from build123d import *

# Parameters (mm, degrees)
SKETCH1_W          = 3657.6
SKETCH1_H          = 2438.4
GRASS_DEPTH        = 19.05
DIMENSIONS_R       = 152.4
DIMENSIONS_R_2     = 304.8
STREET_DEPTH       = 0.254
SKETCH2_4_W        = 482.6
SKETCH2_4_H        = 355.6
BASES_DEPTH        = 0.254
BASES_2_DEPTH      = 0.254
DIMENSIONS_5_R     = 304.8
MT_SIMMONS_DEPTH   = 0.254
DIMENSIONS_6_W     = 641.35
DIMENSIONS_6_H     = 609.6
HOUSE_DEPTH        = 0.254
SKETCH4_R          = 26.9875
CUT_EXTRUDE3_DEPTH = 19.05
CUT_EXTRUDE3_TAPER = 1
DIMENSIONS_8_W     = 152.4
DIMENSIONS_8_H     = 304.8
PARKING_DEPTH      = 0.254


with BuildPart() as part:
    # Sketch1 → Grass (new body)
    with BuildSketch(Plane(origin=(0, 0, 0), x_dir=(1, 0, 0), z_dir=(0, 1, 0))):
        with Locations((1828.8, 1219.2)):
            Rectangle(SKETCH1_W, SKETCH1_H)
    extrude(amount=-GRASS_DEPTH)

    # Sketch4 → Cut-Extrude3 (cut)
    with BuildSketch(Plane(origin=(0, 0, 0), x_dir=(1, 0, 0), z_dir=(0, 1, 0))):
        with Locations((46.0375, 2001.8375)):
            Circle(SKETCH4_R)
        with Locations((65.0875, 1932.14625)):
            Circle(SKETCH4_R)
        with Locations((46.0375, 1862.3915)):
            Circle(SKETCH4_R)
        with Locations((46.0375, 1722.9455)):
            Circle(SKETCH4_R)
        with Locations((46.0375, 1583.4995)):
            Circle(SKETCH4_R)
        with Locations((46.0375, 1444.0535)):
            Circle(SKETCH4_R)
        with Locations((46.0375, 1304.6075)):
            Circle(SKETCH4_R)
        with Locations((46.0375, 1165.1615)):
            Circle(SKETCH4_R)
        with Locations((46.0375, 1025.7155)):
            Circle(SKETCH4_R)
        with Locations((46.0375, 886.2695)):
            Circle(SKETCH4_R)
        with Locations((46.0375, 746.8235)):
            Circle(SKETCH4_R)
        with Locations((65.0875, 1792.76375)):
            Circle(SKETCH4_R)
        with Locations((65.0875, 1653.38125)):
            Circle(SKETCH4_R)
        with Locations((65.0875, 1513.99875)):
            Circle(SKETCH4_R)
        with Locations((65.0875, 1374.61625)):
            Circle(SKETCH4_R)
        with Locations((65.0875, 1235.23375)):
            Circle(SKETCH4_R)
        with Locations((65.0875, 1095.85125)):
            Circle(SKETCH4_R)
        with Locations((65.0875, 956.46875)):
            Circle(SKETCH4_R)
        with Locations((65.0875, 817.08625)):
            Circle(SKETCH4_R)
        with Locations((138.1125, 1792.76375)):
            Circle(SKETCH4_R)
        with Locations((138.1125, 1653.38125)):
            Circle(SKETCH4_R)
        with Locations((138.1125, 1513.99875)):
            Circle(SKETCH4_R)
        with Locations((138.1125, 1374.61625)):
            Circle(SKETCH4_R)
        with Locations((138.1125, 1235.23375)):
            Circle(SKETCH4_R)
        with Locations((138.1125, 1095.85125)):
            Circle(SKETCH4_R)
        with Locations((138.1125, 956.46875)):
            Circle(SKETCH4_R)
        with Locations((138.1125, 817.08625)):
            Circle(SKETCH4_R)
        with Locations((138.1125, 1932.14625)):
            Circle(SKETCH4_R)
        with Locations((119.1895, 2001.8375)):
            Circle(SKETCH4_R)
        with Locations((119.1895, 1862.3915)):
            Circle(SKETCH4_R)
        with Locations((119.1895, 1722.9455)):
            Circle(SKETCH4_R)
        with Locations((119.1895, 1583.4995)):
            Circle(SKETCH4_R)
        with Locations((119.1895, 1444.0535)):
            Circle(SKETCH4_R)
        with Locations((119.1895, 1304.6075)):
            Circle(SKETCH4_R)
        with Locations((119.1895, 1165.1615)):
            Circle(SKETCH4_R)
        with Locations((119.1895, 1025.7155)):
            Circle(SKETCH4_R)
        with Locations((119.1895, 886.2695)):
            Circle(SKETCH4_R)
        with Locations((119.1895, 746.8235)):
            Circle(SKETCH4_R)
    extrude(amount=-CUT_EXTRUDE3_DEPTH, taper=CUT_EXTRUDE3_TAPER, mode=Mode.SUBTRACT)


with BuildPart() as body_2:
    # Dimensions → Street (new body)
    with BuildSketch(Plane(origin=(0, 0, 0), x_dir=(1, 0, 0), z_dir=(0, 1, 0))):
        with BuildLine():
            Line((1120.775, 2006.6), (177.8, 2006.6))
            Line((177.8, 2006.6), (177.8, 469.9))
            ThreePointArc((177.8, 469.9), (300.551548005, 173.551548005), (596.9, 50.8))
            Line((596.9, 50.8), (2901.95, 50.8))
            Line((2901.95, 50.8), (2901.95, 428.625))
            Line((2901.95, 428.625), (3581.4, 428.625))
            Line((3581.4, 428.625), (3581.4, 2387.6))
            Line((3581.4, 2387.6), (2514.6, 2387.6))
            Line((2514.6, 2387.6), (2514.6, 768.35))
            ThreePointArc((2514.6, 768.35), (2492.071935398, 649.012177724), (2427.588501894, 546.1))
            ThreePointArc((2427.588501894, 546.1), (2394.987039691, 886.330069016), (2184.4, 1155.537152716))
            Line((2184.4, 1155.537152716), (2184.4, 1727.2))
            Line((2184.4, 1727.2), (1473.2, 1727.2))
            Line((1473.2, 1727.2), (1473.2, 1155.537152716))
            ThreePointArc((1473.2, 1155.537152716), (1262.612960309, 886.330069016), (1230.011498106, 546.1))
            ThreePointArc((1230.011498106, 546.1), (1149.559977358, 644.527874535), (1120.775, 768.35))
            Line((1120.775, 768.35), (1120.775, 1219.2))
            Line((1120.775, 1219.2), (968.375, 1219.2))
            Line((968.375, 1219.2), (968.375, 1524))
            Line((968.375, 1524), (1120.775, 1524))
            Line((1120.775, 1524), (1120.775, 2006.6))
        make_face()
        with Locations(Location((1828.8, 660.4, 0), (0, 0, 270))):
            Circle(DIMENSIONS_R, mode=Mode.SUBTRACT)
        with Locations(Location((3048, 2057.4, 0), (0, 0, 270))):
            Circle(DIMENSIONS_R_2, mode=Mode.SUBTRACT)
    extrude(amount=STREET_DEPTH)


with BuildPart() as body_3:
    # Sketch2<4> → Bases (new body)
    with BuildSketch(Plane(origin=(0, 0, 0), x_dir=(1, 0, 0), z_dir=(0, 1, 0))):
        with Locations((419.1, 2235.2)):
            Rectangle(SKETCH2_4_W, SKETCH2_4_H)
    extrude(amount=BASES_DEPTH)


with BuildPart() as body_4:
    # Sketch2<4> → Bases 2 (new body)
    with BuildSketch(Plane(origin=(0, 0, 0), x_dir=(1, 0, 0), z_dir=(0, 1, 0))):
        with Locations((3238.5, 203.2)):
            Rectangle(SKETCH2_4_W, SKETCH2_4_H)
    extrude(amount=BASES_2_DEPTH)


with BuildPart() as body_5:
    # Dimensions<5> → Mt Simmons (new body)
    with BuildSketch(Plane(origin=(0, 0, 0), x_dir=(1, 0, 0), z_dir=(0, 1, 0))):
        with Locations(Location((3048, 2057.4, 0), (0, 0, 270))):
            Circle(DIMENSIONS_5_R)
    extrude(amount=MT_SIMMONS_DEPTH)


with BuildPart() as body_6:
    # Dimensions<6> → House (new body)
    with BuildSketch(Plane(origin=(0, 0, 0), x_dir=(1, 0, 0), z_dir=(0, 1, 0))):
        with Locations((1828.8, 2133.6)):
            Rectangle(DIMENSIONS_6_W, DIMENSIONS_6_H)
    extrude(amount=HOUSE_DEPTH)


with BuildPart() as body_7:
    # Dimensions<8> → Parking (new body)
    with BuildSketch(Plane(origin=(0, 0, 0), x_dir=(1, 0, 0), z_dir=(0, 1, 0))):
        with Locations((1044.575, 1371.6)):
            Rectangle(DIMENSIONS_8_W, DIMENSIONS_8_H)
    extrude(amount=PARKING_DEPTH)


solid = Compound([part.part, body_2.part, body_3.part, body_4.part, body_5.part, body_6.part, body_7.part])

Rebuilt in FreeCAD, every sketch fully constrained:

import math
import FreeCAD as App
import Part
import Sketcher

V = App.Vector
Q = App.Units.Quantity


def add_polygon(sketch, points):
    """Adds a closed chain of lines whose ends are joined by coincident constraints."""
    first, n = sketch.GeometryCount, len(points)
    for a, b in zip(points, points[1:] + points[:1]):
        sketch.addGeometry(Part.LineSegment(App.Vector(*a, 0), App.Vector(*b, 0)), False)
    for i in range(n):
        sketch.addConstraint(Sketcher.Constraint("Coincident", first + i, 2, first + (i + 1) % n, 1))

doc = App.newDocument("Part")
body = doc.addObject("PartDesign::Body", "Body")

# Sketch on XZ plane
sketch1 = doc.addObject("Sketcher::SketchObject", "Sketch")
body.addObject(sketch1)
sketch1.AttachmentSupport = (doc.XZ_Plane, [""])
sketch1.MapMode = "FlatFace"
add_polygon(sketch1, [(0, -2438), (0, 0), (3658, 0), (3658, -2438)])  # lines 0-3
sketch1.addConstraint([
    Sketcher.Constraint("Vertical", 0),
    Sketcher.Constraint("Horizontal", 1),
    Sketcher.Constraint("Vertical", 2),
    Sketcher.Constraint("Horizontal", 3),
    Sketcher.Constraint("Coincident", 0, 2, -1, 1),
    Sketcher.Constraint("DistanceX", 1, 1, 1, 2, Q("144 in")),
    Sketcher.Constraint("DistanceY", 0, 1, 0, 2, Q("96 in")),
])
pad1 = doc.addObject("PartDesign::Pad", "Pad")
body.addObject(pad1)
pad1.Profile = sketch1
pad1.Length = Q("0.75 in")

# Sketch on XZ plane
sketch2 = doc.addObject("Sketcher::SketchObject", "Sketch001")
body.addObject(sketch2)
sketch2.AttachmentSupport = (doc.XZ_Plane, [""])
sketch2.MapMode = "FlatFace"
sketch2.addGeometry([
    Part.Circle(V(46, -2002, 0), V(0, 0, 1), 27),  # 0
    Part.Circle(V(65, -1932, 0), V(0, 0, 1), 27),  # 1
    Part.Circle(V(46, -1862, 0), V(0, 0, 1), 27),  # 2
    Part.Circle(V(46, -1723, 0), V(0, 0, 1), 27),  # 3
    Part.Circle(V(46, -1583, 0), V(0, 0, 1), 27),  # 4
    Part.Circle(V(46, -1444, 0), V(0, 0, 1), 27),  # 5
    Part.Circle(V(46, -1305, 0), V(0, 0, 1), 27),  # 6
    Part.Circle(V(46, -1165, 0), V(0, 0, 1), 27),  # 7
    Part.Circle(V(46, -1026, 0), V(0, 0, 1), 27),  # 8
    Part.Circle(V(46, -886, 0), V(0, 0, 1), 27),  # 9
    Part.Circle(V(46, -747, 0), V(0, 0, 1), 27),  # 10
    Part.Circle(V(65, -1793, 0), V(0, 0, 1), 27),  # 11
    Part.Circle(V(65, -1653, 0), V(0, 0, 1), 27),  # 12
    Part.Circle(V(65, -1514, 0), V(0, 0, 1), 27),  # 13
    Part.Circle(V(65, -1375, 0), V(0, 0, 1), 27),  # 14
    Part.Circle(V(65, -1235, 0), V(0, 0, 1), 27),  # 15
    Part.Circle(V(65, -1096, 0), V(0, 0, 1), 27),  # 16
    Part.Circle(V(65, -956, 0), V(0, 0, 1), 27),  # 17
    Part.Circle(V(65, -817, 0), V(0, 0, 1), 27),  # 18
    Part.Circle(V(138, -1793, 0), V(0, 0, 1), 27),  # 19
    Part.Circle(V(138, -1653, 0), V(0, 0, 1), 27),  # 20
    Part.Circle(V(138, -1514, 0), V(0, 0, 1), 27),  # 21
    Part.Circle(V(138, -1375, 0), V(0, 0, 1), 27),  # 22
    Part.Circle(V(138, -1235, 0), V(0, 0, 1), 27),  # 23
    Part.Circle(V(138, -1096, 0), V(0, 0, 1), 27),  # 24
    Part.Circle(V(138, -956, 0), V(0, 0, 1), 27),  # 25
    Part.Circle(V(138, -817, 0), V(0, 0, 1), 27),  # 26
    Part.Circle(V(138, -1932, 0), V(0, 0, 1), 27),  # 27
    Part.Circle(V(119, -2002, 0), V(0, 0, 1), 27),  # 28
    Part.Circle(V(119, -1862, 0), V(0, 0, 1), 27),  # 29
    Part.Circle(V(119, -1723, 0), V(0, 0, 1), 27),  # 30
    Part.Circle(V(119, -1583, 0), V(0, 0, 1), 27),  # 31
    Part.Circle(V(119, -1444, 0), V(0, 0, 1), 27),  # 32
    Part.Circle(V(119, -1305, 0), V(0, 0, 1), 27),  # 33
    Part.Circle(V(119, -1165, 0), V(0, 0, 1), 27),  # 34
    Part.Circle(V(119, -1026, 0), V(0, 0, 1), 27),  # 35
    Part.Circle(V(119, -886, 0), V(0, 0, 1), 27),  # 36
    Part.Circle(V(119, -747, 0), V(0, 0, 1), 27),  # 37
], False)
sketch2.addConstraint([
    Sketcher.Constraint("Equal", 0, 1),
    Sketcher.Constraint("Equal", 1, 2),
    Sketcher.Constraint("Equal", 2, 3),
    Sketcher.Constraint("Equal", 3, 4),
    Sketcher.Constraint("Equal", 4, 5),
    Sketcher.Constraint("Equal", 5, 6),
    Sketcher.Constraint("Equal", 6, 7),
    Sketcher.Constraint("Equal", 7, 8),
    Sketcher.Constraint("Equal", 8, 9),
    Sketcher.Constraint("Equal", 9, 10),
    Sketcher.Constraint("Equal", 10, 11),
    Sketcher.Constraint("Equal", 11, 12),
    Sketcher.Constraint("Equal", 12, 13),
    Sketcher.Constraint("Equal", 13, 14),
    Sketcher.Constraint("Equal", 14, 15),
    Sketcher.Constraint("Equal", 15, 16),
    Sketcher.Constraint("Equal", 16, 17),
    Sketcher.Constraint("Equal", 17, 18),
    Sketcher.Constraint("Equal", 18, 19),
    Sketcher.Constraint("Equal", 19, 20),
    Sketcher.Constraint("Equal", 20, 21),
    Sketcher.Constraint("Equal", 21, 22),
    Sketcher.Constraint("Equal", 22, 23),
    Sketcher.Constraint("Equal", 23, 24),
    Sketcher.Constraint("Equal", 24, 25),
    Sketcher.Constraint("Equal", 25, 26),
    Sketcher.Constraint("Equal", 26, 27),
    Sketcher.Constraint("Equal", 27, 28),
    Sketcher.Constraint("Equal", 28, 29),
    Sketcher.Constraint("Equal", 29, 30),
    Sketcher.Constraint("Equal", 30, 31),
    Sketcher.Constraint("Equal", 31, 32),
    Sketcher.Constraint("Equal", 32, 33),
    Sketcher.Constraint("Equal", 33, 34),
    Sketcher.Constraint("Equal", 34, 35),
    Sketcher.Constraint("Equal", 35, 36),
    Sketcher.Constraint("Equal", 36, 37),
    Sketcher.Constraint("Horizontal", 11, 3, 19, 3),
    Sketcher.Constraint("Horizontal", 12, 3, 20, 3),
    Sketcher.Constraint("Horizontal", 13, 3, 21, 3),
    Sketcher.Constraint("Horizontal", 14, 3, 22, 3),
    Sketcher.Constraint("Horizontal", 15, 3, 23, 3),
    Sketcher.Constraint("Horizontal", 16, 3, 24, 3),
    Sketcher.Constraint("Horizontal", 17, 3, 25, 3),
    Sketcher.Constraint("Horizontal", 18, 3, 26, 3),
    Sketcher.Constraint("Horizontal", 1, 3, 27, 3),
    Sketcher.Constraint("Horizontal", 0, 3, 28, 3),
    Sketcher.Constraint("Horizontal", 2, 3, 29, 3),
    Sketcher.Constraint("Horizontal", 3, 3, 30, 3),
    Sketcher.Constraint("Horizontal", 4, 3, 31, 3),
    Sketcher.Constraint("Horizontal", 5, 3, 32, 3),
    Sketcher.Constraint("Horizontal", 6, 3, 33, 3),
    Sketcher.Constraint("Horizontal", 7, 3, 34, 3),
    Sketcher.Constraint("Horizontal", 8, 3, 35, 3),
    Sketcher.Constraint("Horizontal", 9, 3, 36, 3),
    Sketcher.Constraint("Horizontal", 10, 3, 37, 3),
    Sketcher.Constraint("Vertical", 0, 3, 2, 3),
    Sketcher.Constraint("Vertical", 2, 3, 3, 3),
    Sketcher.Constraint("Vertical", 3, 3, 4, 3),
    Sketcher.Constraint("Vertical", 4, 3, 5, 3),
    Sketcher.Constraint("Vertical", 5, 3, 6, 3),
    Sketcher.Constraint("Vertical", 6, 3, 7, 3),
    Sketcher.Constraint("Vertical", 7, 3, 8, 3),
    Sketcher.Constraint("Vertical", 8, 3, 9, 3),
    Sketcher.Constraint("Vertical", 9, 3, 10, 3),
    Sketcher.Constraint("Vertical", 1, 3, 11, 3),
    Sketcher.Constraint("Vertical", 11, 3, 12, 3),
    Sketcher.Constraint("Vertical", 12, 3, 13, 3),
    Sketcher.Constraint("Vertical", 13, 3, 14, 3),
    Sketcher.Constraint("Vertical", 14, 3, 15, 3),
    Sketcher.Constraint("Vertical", 15, 3, 16, 3),
    Sketcher.Constraint("Vertical", 16, 3, 17, 3),
    Sketcher.Constraint("Vertical", 17, 3, 18, 3),
    Sketcher.Constraint("Vertical", 19, 3, 20, 3),
    Sketcher.Constraint("Vertical", 20, 3, 21, 3),
    Sketcher.Constraint("Vertical", 21, 3, 22, 3),
    Sketcher.Constraint("Vertical", 22, 3, 23, 3),
    Sketcher.Constraint("Vertical", 23, 3, 24, 3),
    Sketcher.Constraint("Vertical", 24, 3, 25, 3),
    Sketcher.Constraint("Vertical", 25, 3, 26, 3),
    Sketcher.Constraint("Vertical", 26, 3, 27, 3),
    Sketcher.Constraint("Vertical", 28, 3, 29, 3),
    Sketcher.Constraint("Vertical", 29, 3, 30, 3),
    Sketcher.Constraint("Vertical", 30, 3, 31, 3),
    Sketcher.Constraint("Vertical", 31, 3, 32, 3),
    Sketcher.Constraint("Vertical", 32, 3, 33, 3),
    Sketcher.Constraint("Vertical", 33, 3, 34, 3),
    Sketcher.Constraint("Vertical", 34, 3, 35, 3),
    Sketcher.Constraint("Vertical", 35, 3, 36, 3),
    Sketcher.Constraint("Vertical", 36, 3, 37, 3),
    Sketcher.Constraint("Diameter", 0, Q("2.125 in")),
    Sketcher.Constraint("DistanceX", 0, 3, 1, 3, Q("0.75 in")),
    Sketcher.Constraint("DistanceY", 0, 3, 2, 3, Q("5.49 in")),
    Sketcher.Constraint("DistanceY", 2, 3, 3, 3, Q("5.49 in")),
    Sketcher.Constraint("DistanceY", 3, 3, 4, 3, Q("5.49 in")),
    Sketcher.Constraint("DistanceY", 4, 3, 5, 3, Q("5.49 in")),
    Sketcher.Constraint("DistanceY", 5, 3, 6, 3, Q("5.49 in")),
    Sketcher.Constraint("DistanceY", 6, 3, 7, 3, Q("5.49 in")),
    Sketcher.Constraint("DistanceY", 7, 3, 8, 3, Q("5.49 in")),
    Sketcher.Constraint("DistanceY", 8, 3, 9, 3, Q("5.49 in")),
    Sketcher.Constraint("DistanceY", 9, 3, 10, 3, Q("5.49 in")),
    Sketcher.Constraint("DistanceX", 0, 3, 28, 3, Q("2.88 in")),
    Sketcher.Constraint("DistanceX", -1, 1, 0, 3, Q("1.8125 in")),
    Sketcher.Constraint("DistanceY", 0, 3, -1, 1, Q("78.8125 in")),
    Sketcher.Constraint("DistanceY", 12, 3, -1, 1, Q("65.09375 in")),
    Sketcher.Constraint("DistanceY", 17, 3, -1, 1, Q("37.65625 in")),
    Sketcher.Constraint("DistanceX", -1, 1, 19, 3, Q("5.4375 in")),
    Sketcher.Constraint("DistanceY", 6, 3, 16, 3, Q("8.21875 in")),
    Sketcher.Constraint("DistanceY", 16, 3, 18, 3, Q("10.975 in")),
    Sketcher.Constraint("DistanceY", 1, 3, 11, 3, Q("5.4875 in")),
    Sketcher.Constraint("DistanceY", 11, 3, 12, 3, Q("5.4875 in")),
    Sketcher.Constraint("DistanceY", 12, 3, 13, 3, Q("5.4875 in")),
    Sketcher.Constraint("DistanceY", 13, 3, 14, 3, Q("5.4875 in")),
    Sketcher.Constraint("DistanceY", 14, 3, 15, 3, Q("5.4875 in")),
])
pocket1 = doc.addObject("PartDesign::Pocket", "Pocket")
body.addObject(pocket1)
pocket1.Profile = sketch2
pocket1.Length = Q("0.75 in")
pocket1.Reversed = True
pocket1.TaperAngle = -1
body2 = doc.addObject("PartDesign::Body", "Body001")

# Sketch on XZ plane
sketch3 = doc.addObject("Sketcher::SketchObject", "Sketch002")
body2.addObject(sketch3)
sketch3.AttachmentSupport = (doc.getObject("XZ_Plane001"), [""])
sketch3.MapMode = "FlatFace"
sketch3.addGeometry([
    Part.LineSegment(V(1121, -2007, 0), V(178, -2007, 0)),  # 0
    Part.LineSegment(V(178, -2007, 0), V(178, -470, 0)),  # 1
    Part.ArcOfCircle(Part.Circle(V(597, -470, 0), V(0, 0, 1), 419), math.radians(90), math.radians(180)),  # 2
    Part.LineSegment(V(597, -51, 0), V(2902, -51, 0)),  # 3
    Part.LineSegment(V(2902, -51, 0), V(2902, -429, 0)),  # 4
    Part.LineSegment(V(2902, -429, 0), V(3581, -429, 0)),  # 5
    Part.LineSegment(V(3581, -429, 0), V(3581, -2388, 0)),  # 6
    Part.LineSegment(V(3581, -2388, 0), V(2515, -2388, 0)),  # 7
    Part.LineSegment(V(2515, -2388, 0), V(2515, -768, 0)),  # 8
    Part.ArcOfCircle(Part.Circle(V(2187, -768, 0), V(0, 0, 1), 327), math.radians(0), math.radians(43)),  # 9
    Part.ArcOfCircle(Part.Circle(V(1829, -660, 0), V(0, 0, 1), 610), math.radians(-54), math.radians(11)),  # 10
    Part.LineSegment(V(2184, -1156, 0), V(2184, -1727, 0)),  # 11
    Part.LineSegment(V(2184, -1727, 0), V(1473, -1727, 0)),  # 12
    Part.LineSegment(V(1473, -1727, 0), V(1473, -1156, 0)),  # 13
    Part.ArcOfCircle(Part.Circle(V(1829, -660, 0), V(0, 0, 1), 610), math.radians(169), math.radians(234)),  # 14
    Part.ArcOfCircle(Part.Circle(V(1401, -768, 0), V(0, 0, 1), 281), math.radians(128), math.radians(180)),  # 15
    Part.LineSegment(V(1121, -768, 0), V(1121, -1219, 0)),  # 16
    Part.LineSegment(V(1121, -1219, 0), V(968, -1219, 0)),  # 17
    Part.LineSegment(V(968, -1219, 0), V(968, -1524, 0)),  # 18
    Part.LineSegment(V(968, -1524, 0), V(1121, -1524, 0)),  # 19
    Part.LineSegment(V(1121, -1524, 0), V(1121, -2007, 0)),  # 20
    Part.Circle(V(1829, -660, 0), V(0, 0, 1), 152),  # 21
    Part.Circle(V(3048, -2057, 0), V(0, 0, 1), 305),  # 22
], False)
sketch3.addConstraint([
    Sketcher.Constraint("Coincident", 0, 2, 1, 1),
    Sketcher.Constraint("Tangent", 1, 2, 2, 2),
    Sketcher.Constraint("Tangent", 2, 1, 3, 1),
    Sketcher.Constraint("Coincident", 3, 2, 4, 1),
    Sketcher.Constraint("Coincident", 4, 2, 5, 1),
    Sketcher.Constraint("Coincident", 5, 2, 6, 1),
    Sketcher.Constraint("Coincident", 6, 2, 7, 1),
    Sketcher.Constraint("Coincident", 7, 2, 8, 1),
    Sketcher.Constraint("Tangent", 8, 2, 9, 1),
    Sketcher.Constraint("Coincident", 9, 2, 10, 2),
    Sketcher.Constraint("Coincident", 10, 1, 11, 1),
    Sketcher.Constraint("Coincident", 11, 2, 12, 1),
    Sketcher.Constraint("Coincident", 12, 2, 13, 1),
    Sketcher.Constraint("Coincident", 13, 2, 14, 2),
    Sketcher.Constraint("Coincident", 14, 1, 15, 1),
    Sketcher.Constraint("Tangent", 15, 2, 16, 1),
    Sketcher.Constraint("Coincident", 16, 2, 17, 1),
    Sketcher.Constraint("Coincident", 17, 2, 18, 1),
    Sketcher.Constraint("Coincident", 18, 2, 19, 1),
    Sketcher.Constraint("Coincident", 19, 2, 20, 1),
    Sketcher.Constraint("Coincident", 20, 2, 0, 1),
    Sketcher.Constraint("Horizontal", 0),
    Sketcher.Constraint("Vertical", 1),
    Sketcher.Constraint("Horizontal", 3),
    Sketcher.Constraint("Vertical", 4),
    Sketcher.Constraint("Horizontal", 5),
    Sketcher.Constraint("Vertical", 6),
    Sketcher.Constraint("Horizontal", 7),
    Sketcher.Constraint("Vertical", 8),
    Sketcher.Constraint("Vertical", 11),
    Sketcher.Constraint("Horizontal", 12),
    Sketcher.Constraint("Vertical", 13),
    Sketcher.Constraint("Vertical", 16),
    Sketcher.Constraint("Horizontal", 17),
    Sketcher.Constraint("Vertical", 18),
    Sketcher.Constraint("Horizontal", 19),
    Sketcher.Constraint("Vertical", 20),
    Sketcher.Constraint("Coincident", 14, 3, 10, 3),
    Sketcher.Constraint("Coincident", 21, 3, 10, 3),
    Sketcher.Constraint("Equal", 10, 14),
    Sketcher.Constraint("Horizontal", 9, 3, 15, 3),
    Sketcher.Constraint("Horizontal", 10, 1, 13, 2),
    Sketcher.Constraint("Horizontal", 9, 2, 14, 1),
    Sketcher.Constraint("Vertical", 16, 2, 19, 2),
    Sketcher.Constraint("Diameter", 21, Q("12 in")),
    Sketcher.Constraint("Diameter", 22, Q("24 in")),
    Sketcher.Constraint("Radius", 10, Q("24 in")),
    Sketcher.Constraint("Radius", 2, Q("16.5 in")),
    Sketcher.Constraint("DistanceX", 7, 2, 7, 1, Q("42 in")),
    Sketcher.Constraint("DistanceX", 12, 2, 12, 1, Q("28 in")),
    Sketcher.Constraint("DistanceX", 17, 2, 17, 1, Q("6 in")),
    Sketcher.Constraint("DistanceY", 18, 2, 18, 1, Q("12 in")),
    Sketcher.Constraint("DistanceY", 20, 2, 20, 1, Q("19 in")),
    Sketcher.Constraint("DistanceY", 1, 1, 1, 2, Q("60.5 in")),
    Sketcher.Constraint("DistanceX", -1, 1, 10, 3, Q("72 in")),
    Sketcher.Constraint("DistanceY", 10, 3, -1, 1, Q("26 in")),
    Sketcher.Constraint("DistanceX", -1, 1, 22, 3, Q("120 in")),
    Sketcher.Constraint("DistanceY", 22, 3, -1, 1, Q("81 in")),
    Sketcher.Constraint("DistanceX", -1, 1, 0, 2, Q("7 in")),
    Sketcher.Constraint("DistanceY", 0, 2, -1, 1, Q("79 in")),
    Sketcher.Constraint("DistanceX", -1, 1, 5, 2, Q("141 in")),
    Sketcher.Constraint("DistanceY", 6, 2, -1, 1, Q("94 in")),
    Sketcher.Constraint("DistanceY", 11, 2, -1, 1, Q("68 in")),
    Sketcher.Constraint("DistanceX", 3, 1, 3, 2, Q("90.75 in")),
    Sketcher.Constraint("DistanceY", 8, 1, 8, 2, Q("63.75 in")),
    Sketcher.Constraint("DistanceX", 0, 2, 0, 1, Q("37.125 in")),
    Sketcher.Constraint("DistanceY", 4, 2, 4, 1, Q("14.875 in")),
    Sketcher.Constraint("Radius", 15, 280.71055),
])
pad2 = doc.addObject("PartDesign::Pad", "Pad001")
body2.addObject(pad2)
pad2.Profile = sketch3
pad2.Length = Q("0.01 in")
pad2.Reversed = True
body3 = doc.addObject("PartDesign::Body", "Body002")

# Sketch on XZ plane
sketch4 = doc.addObject("Sketcher::SketchObject", "Sketch003")
body3.addObject(sketch4)
sketch4.AttachmentSupport = (doc.getObject("XZ_Plane002"), [""])
sketch4.MapMode = "FlatFace"
add_polygon(sketch4, [(178, -2413), (178, -2057), (660, -2057), (660, -2413)])  # lines 0-3
sketch4.addConstraint([
    Sketcher.Constraint("Vertical", 0),
    Sketcher.Constraint("Horizontal", 1),
    Sketcher.Constraint("Vertical", 2),
    Sketcher.Constraint("Horizontal", 3),
    Sketcher.Constraint("DistanceX", 1, 1, 1, 2, Q("19 in")),
    Sketcher.Constraint("DistanceY", 0, 1, 0, 2, Q("14 in")),
    Sketcher.Constraint("DistanceX", -1, 1, 0, 2, Q("7 in")),
    Sketcher.Constraint("DistanceY", 0, 2, -1, 1, Q("81 in")),
])
pad3 = doc.addObject("PartDesign::Pad", "Pad002")
body3.addObject(pad3)
pad3.Profile = sketch4
pad3.Length = Q("0.01 in")
pad3.Reversed = True
body4 = doc.addObject("PartDesign::Body", "Body003")

# Sketch on XZ plane
sketch5 = doc.addObject("Sketcher::SketchObject", "Sketch004")
body4.addObject(sketch5)
sketch5.AttachmentSupport = (doc.getObject("XZ_Plane003"), [""])
sketch5.MapMode = "FlatFace"
add_polygon(sketch5, [(2997, -381), (2997, -25), (3480, -25), (3480, -381)])  # lines 0-3
sketch5.addConstraint([
    Sketcher.Constraint("Vertical", 0),
    Sketcher.Constraint("Horizontal", 1),
    Sketcher.Constraint("Vertical", 2),
    Sketcher.Constraint("Horizontal", 3),
    Sketcher.Constraint("DistanceX", 1, 1, 1, 2, Q("19 in")),
    Sketcher.Constraint("DistanceY", 0, 1, 0, 2, Q("14 in")),
    Sketcher.Constraint("DistanceX", -1, 1, 0, 2, Q("118 in")),
    Sketcher.Constraint("DistanceY", 0, 2, -1, 1, Q("1 in")),
])
pad4 = doc.addObject("PartDesign::Pad", "Pad003")
body4.addObject(pad4)
pad4.Profile = sketch5
pad4.Length = Q("0.01 in")
pad4.Reversed = True
body5 = doc.addObject("PartDesign::Body", "Body004")

# Sketch on XZ plane
sketch6 = doc.addObject("Sketcher::SketchObject", "Sketch005")
body5.addObject(sketch6)
sketch6.AttachmentSupport = (doc.getObject("XZ_Plane004"), [""])
sketch6.MapMode = "FlatFace"
sketch6.addGeometry(Part.Circle(V(3048, -2057, 0), V(0, 0, 1), 305), False)
sketch6.addConstraint([
    Sketcher.Constraint("Diameter", 0, Q("24 in")),
    Sketcher.Constraint("DistanceX", -1, 1, 0, 3, Q("120 in")),
    Sketcher.Constraint("DistanceY", 0, 3, -1, 1, Q("81 in")),
])
pad5 = doc.addObject("PartDesign::Pad", "Pad004")
body5.addObject(pad5)
pad5.Profile = sketch6
pad5.Length = Q("0.01 in")
pad5.Reversed = True
body6 = doc.addObject("PartDesign::Body", "Body005")

# Sketch on XZ plane
sketch7 = doc.addObject("Sketcher::SketchObject", "Sketch006")
body6.addObject(sketch7)
sketch7.AttachmentSupport = (doc.getObject("XZ_Plane005"), [""])
sketch7.MapMode = "FlatFace"
add_polygon(sketch7, [(1508, -2438), (1508, -1829), (2149, -1829), (2149, -2438)])  # lines 0-3
sketch7.addConstraint([
    Sketcher.Constraint("Vertical", 0),
    Sketcher.Constraint("Horizontal", 1),
    Sketcher.Constraint("Vertical", 2),
    Sketcher.Constraint("Horizontal", 3),
    Sketcher.Constraint("DistanceY", 0, 1, 0, 2, Q("24 in")),
    Sketcher.Constraint("DistanceY", 0, 2, -1, 1, Q("72 in")),
    Sketcher.Constraint("DistanceX", 1, 1, 1, 2, Q("25.25 in")),
    Sketcher.Constraint("DistanceX", -1, 1, 0, 2, Q("59.375 in")),
])
pad6 = doc.addObject("PartDesign::Pad", "Pad005")
body6.addObject(pad6)
pad6.Profile = sketch7
pad6.Length = Q("0.01 in")
pad6.Reversed = True
body7 = doc.addObject("PartDesign::Body", "Body006")

# Sketch on XZ plane
sketch8 = doc.addObject("Sketcher::SketchObject", "Sketch007")
body7.addObject(sketch8)
sketch8.AttachmentSupport = (doc.getObject("XZ_Plane006"), [""])
sketch8.MapMode = "FlatFace"
add_polygon(sketch8, [(968, -1524), (968, -1219), (1121, -1219), (1121, -1524)])  # lines 0-3
sketch8.addConstraint([
    Sketcher.Constraint("Vertical", 0),
    Sketcher.Constraint("Horizontal", 1),
    Sketcher.Constraint("Vertical", 2),
    Sketcher.Constraint("Horizontal", 3),
    Sketcher.Constraint("DistanceX", 1, 1, 1, 2, Q("6 in")),
    Sketcher.Constraint("DistanceY", 0, 1, 0, 2, Q("12 in")),
    Sketcher.Constraint("DistanceY", 0, 2, -1, 1, Q("48 in")),
    Sketcher.Constraint("DistanceX", -1, 1, 0, 2, Q("38.125 in")),
])
pad7 = doc.addObject("PartDesign::Pad", "Pad006")
body7.addObject(pad7)
pad7.Profile = sketch8
pad7.Length = Q("0.01 in")
pad7.Reversed = True

doc.recompute()
